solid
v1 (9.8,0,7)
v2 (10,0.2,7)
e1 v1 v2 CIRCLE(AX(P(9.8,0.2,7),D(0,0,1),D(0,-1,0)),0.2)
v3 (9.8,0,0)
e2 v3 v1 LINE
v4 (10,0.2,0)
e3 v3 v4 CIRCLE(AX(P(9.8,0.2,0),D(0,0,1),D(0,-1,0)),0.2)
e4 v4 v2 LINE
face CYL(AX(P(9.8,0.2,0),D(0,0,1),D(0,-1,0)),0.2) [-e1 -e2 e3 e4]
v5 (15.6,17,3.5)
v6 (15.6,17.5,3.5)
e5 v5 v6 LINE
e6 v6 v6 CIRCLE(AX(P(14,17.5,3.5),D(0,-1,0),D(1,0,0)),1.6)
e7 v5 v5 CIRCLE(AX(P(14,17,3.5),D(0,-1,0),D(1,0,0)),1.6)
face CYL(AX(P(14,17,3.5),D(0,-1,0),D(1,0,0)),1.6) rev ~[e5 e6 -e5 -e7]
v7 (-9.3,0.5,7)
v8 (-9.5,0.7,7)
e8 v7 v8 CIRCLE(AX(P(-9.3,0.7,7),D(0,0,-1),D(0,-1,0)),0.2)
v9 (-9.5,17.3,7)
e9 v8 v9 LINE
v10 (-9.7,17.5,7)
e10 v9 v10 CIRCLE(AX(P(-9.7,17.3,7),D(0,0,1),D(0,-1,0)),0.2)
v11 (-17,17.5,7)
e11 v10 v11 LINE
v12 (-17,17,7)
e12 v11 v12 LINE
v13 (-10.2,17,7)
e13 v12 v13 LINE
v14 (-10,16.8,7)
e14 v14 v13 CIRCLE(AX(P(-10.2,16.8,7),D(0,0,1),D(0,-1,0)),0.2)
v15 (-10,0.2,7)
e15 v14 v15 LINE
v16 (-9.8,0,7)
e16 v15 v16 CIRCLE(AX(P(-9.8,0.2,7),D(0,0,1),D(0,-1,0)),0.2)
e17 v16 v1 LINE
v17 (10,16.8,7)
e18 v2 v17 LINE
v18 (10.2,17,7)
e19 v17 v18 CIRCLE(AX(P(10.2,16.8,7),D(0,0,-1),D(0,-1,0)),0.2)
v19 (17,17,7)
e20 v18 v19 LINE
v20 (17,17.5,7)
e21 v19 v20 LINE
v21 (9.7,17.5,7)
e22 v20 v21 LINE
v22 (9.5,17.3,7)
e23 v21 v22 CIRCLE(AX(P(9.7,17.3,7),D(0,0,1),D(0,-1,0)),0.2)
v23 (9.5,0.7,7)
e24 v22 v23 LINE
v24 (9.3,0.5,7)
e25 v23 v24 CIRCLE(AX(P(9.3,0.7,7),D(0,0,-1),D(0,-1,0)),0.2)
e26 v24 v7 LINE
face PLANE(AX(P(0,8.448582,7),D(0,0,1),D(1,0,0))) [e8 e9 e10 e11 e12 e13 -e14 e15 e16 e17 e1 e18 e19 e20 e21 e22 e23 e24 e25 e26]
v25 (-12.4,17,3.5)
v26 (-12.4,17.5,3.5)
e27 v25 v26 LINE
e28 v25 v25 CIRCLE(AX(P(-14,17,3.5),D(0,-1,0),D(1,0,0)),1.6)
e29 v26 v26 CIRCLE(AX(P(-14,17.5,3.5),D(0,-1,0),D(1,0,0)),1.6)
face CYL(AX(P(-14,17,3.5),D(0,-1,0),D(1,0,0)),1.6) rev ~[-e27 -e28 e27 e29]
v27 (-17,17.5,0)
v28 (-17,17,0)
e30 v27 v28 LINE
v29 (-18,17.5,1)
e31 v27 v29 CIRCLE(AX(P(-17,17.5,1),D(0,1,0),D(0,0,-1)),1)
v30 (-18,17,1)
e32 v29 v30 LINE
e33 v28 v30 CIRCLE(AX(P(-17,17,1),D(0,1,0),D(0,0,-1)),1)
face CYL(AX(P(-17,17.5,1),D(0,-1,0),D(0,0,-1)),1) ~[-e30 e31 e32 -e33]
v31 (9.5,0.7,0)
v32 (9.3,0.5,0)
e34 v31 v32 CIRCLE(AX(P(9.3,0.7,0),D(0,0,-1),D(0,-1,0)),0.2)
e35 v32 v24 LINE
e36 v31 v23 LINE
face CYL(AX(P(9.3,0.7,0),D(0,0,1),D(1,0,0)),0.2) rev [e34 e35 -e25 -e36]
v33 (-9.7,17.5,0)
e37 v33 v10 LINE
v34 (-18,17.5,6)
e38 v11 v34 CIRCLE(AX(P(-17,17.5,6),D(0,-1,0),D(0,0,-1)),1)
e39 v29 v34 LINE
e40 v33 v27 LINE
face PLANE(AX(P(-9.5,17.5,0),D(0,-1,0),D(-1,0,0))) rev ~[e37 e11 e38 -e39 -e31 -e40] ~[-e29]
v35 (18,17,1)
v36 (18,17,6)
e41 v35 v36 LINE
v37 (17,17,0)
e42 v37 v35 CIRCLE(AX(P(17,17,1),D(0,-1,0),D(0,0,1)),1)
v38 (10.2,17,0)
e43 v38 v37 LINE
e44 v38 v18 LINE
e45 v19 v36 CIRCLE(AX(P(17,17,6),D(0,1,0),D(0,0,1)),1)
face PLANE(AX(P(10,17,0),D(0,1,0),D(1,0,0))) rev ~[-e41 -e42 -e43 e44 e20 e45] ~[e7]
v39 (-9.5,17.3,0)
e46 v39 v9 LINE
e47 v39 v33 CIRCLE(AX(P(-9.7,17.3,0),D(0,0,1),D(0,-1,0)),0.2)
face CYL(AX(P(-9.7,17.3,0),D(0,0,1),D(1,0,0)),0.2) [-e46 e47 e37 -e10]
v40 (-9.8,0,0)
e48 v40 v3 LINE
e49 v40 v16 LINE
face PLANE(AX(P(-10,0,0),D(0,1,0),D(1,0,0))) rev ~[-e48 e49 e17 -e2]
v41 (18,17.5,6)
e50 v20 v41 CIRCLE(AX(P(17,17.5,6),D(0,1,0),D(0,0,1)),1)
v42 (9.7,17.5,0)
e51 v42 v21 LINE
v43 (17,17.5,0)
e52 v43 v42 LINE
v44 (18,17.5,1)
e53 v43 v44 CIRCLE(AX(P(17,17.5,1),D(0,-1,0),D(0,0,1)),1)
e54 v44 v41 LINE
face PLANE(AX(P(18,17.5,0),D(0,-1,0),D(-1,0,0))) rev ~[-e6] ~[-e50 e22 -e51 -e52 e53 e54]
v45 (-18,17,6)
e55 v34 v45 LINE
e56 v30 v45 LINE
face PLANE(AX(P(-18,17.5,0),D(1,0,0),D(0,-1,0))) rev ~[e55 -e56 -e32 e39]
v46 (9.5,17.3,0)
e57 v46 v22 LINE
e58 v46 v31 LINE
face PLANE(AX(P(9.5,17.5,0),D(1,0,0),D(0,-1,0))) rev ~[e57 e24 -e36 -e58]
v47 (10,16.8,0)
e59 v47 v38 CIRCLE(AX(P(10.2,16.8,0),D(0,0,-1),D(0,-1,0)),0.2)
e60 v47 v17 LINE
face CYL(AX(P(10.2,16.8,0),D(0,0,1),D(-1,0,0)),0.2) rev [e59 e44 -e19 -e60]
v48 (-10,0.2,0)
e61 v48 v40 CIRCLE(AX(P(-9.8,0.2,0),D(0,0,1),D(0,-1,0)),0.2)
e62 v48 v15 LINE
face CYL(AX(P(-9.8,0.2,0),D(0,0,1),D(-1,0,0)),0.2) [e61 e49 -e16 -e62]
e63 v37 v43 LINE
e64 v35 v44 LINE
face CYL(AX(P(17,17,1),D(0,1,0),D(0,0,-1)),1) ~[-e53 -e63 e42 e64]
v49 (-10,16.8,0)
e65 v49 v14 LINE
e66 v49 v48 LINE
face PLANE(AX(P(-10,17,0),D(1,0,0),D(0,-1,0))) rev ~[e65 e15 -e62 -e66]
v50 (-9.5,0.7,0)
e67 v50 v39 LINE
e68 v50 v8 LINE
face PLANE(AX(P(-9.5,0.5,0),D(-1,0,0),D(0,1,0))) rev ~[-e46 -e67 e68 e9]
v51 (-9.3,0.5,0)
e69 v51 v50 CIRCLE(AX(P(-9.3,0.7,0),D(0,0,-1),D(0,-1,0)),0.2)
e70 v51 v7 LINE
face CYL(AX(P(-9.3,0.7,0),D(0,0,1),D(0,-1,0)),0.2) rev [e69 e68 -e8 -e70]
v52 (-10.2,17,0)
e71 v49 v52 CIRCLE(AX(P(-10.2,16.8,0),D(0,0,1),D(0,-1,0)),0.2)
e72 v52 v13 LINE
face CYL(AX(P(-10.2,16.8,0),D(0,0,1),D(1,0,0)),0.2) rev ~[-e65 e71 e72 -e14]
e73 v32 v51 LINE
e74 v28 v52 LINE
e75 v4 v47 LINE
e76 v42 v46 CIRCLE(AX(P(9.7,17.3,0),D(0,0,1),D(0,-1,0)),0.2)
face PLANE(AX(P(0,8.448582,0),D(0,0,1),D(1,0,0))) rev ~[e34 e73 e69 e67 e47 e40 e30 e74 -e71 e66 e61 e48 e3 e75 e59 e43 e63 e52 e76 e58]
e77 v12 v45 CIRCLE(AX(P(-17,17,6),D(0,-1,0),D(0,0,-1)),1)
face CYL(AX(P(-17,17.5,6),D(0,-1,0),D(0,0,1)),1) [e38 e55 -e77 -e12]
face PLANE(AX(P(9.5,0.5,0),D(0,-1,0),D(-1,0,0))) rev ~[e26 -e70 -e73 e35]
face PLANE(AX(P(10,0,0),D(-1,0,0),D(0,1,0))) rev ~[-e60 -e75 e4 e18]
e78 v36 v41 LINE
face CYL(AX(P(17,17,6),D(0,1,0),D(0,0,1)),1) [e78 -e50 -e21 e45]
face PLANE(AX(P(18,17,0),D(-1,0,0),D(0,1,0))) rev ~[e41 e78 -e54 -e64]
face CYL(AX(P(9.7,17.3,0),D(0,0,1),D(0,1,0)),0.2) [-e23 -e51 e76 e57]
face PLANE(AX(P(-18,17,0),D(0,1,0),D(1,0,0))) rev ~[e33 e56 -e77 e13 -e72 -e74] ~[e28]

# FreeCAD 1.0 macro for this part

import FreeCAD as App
import Part
import Sketcher

V = App.Vector


def edges_at(feature, points):
    """Names of the edges that pass closest to the given points."""
    edges = feature.Shape.Edges
    near = lambda p: min(range(len(edges)), key=lambda i: edges[i].distToShape(Part.Vertex(*p))[0])
    return sorted({f"Edge{near(p) + 1}" for p in points})

doc = App.newDocument("Part")
body = doc.addObject("PartDesign::Body", "Body")

sketch1 = body.newObject("Sketcher::SketchObject", "Sketch")
sketch1.AttachmentSupport = (doc.getObject("XY_Plane"), [""])
sketch1.MapMode = "FlatFace"
sketch1.addGeometry(Part.LineSegment(V(-10, 17, 0), V(-10, 0, 0)), False)
sketch1.addGeometry(Part.LineSegment(V(-10, 0, 0), V(10, 0, 0)), False)
sketch1.addGeometry(Part.LineSegment(V(10, 0, 0), V(10, 17, 0)), False)
sketch1.addGeometry(Part.LineSegment(V(10, 17, 0), V(18, 17, 0)), False)
sketch1.addGeometry(Part.LineSegment(V(18, 17, 0), V(18, 17.5, 0)), False)
sketch1.addGeometry(Part.LineSegment(V(18, 17.5, 0), V(9.5, 17.5, 0)), False)
sketch1.addGeometry(Part.LineSegment(V(9.5, 17.5, 0), V(9.5, 0.5, 0)), False)
sketch1.addGeometry(Part.LineSegment(V(9.5, 0.5, 0), V(-9.5, 0.5, 0)), False)
sketch1.addGeometry(Part.LineSegment(V(-9.5, 0.5, 0), V(-9.5, 17.5, 0)), False)
sketch1.addGeometry(Part.LineSegment(V(-9.5, 17.5, 0), V(-18, 17.5, 0)), False)
sketch1.addGeometry(Part.LineSegment(V(-18, 17.5, 0), V(-18, 17, 0)), False)
sketch1.addGeometry(Part.LineSegment(V(-18, 17, 0), V(-10, 17, 0)), False)
sketch1.addConstraint(Sketcher.Constraint("Coincident", 0, 2, 1, 1))
sketch1.addConstraint(Sketcher.Constraint("Coincident", 1, 2, 2, 1))
sketch1.addConstraint(Sketcher.Constraint("Coincident", 2, 2, 3, 1))
sketch1.addConstraint(Sketcher.Constraint("Coincident", 3, 2, 4, 1))
sketch1.addConstraint(Sketcher.Constraint("Coincident", 4, 2, 5, 1))
sketch1.addConstraint(Sketcher.Constraint("Coincident", 5, 2, 6, 1))
sketch1.addConstraint(Sketcher.Constraint("Coincident", 6, 2, 7, 1))
sketch1.addConstraint(Sketcher.Constraint("Coincident", 7, 2, 8, 1))
sketch1.addConstraint(Sketcher.Constraint("Coincident", 8, 2, 9, 1))
sketch1.addConstraint(Sketcher.Constraint("Coincident", 9, 2, 10, 1))
sketch1.addConstraint(Sketcher.Constraint("Coincident", 10, 2, 11, 1))
sketch1.addConstraint(Sketcher.Constraint("Coincident", 11, 2, 0, 1))
sketch1.addConstraint(Sketcher.Constraint("Vertical", 0))
sketch1.addConstraint(Sketcher.Constraint("Horizontal", 1))
sketch1.addConstraint(Sketcher.Constraint("Vertical", 2))
sketch1.addConstraint(Sketcher.Constraint("Horizontal", 3))
sketch1.addConstraint(Sketcher.Constraint("Vertical", 4))
sketch1.addConstraint(Sketcher.Constraint("Horizontal", 5))
sketch1.addConstraint(Sketcher.Constraint("Vertical", 6))
sketch1.addConstraint(Sketcher.Constraint("Horizontal", 7))
sketch1.addConstraint(Sketcher.Constraint("Vertical", 8))
sketch1.addConstraint(Sketcher.Constraint("Horizontal", 9))
sketch1.addConstraint(Sketcher.Constraint("Vertical", 10))
sketch1.addConstraint(Sketcher.Constraint("Horizontal", 11))
sketch1.addConstraint(Sketcher.Constraint("Symmetric", 0, 2, 1, 2, -1, 1))
sketch1.addConstraint(Sketcher.Constraint("Symmetric", 5, 2, 8, 2, -2))
sketch1.addConstraint(Sketcher.Constraint("Symmetric", 3, 2, 10, 2, -2))
sketch1.addConstraint(Sketcher.Constraint("Equal", 2, 6))
sketch1.addConstraint(Sketcher.Constraint("DistanceX", 1, 1, 1, 2, 20.0))
sketch1.addConstraint(Sketcher.Constraint("DistanceX", 3, 1, 3, 2, 8.0))
sketch1.addConstraint(Sketcher.Constraint("DistanceX", 7, 2, 7, 1, 19.0))
sketch1.addConstraint(Sketcher.Constraint("DistanceY", 0, 2, 0, 1, 17.0))
sketch1.addConstraint(Sketcher.Constraint("DistanceY", 4, 1, 4, 2, 0.5))
pad1 = body.newObject("PartDesign::Pad", "Pad")
pad1.Profile = sketch1
pad1.Length = 7
doc.recompute()

fillet = body.newObject("PartDesign::Fillet", "Fillet")
fillet.Base = (pad1, edges_at(pad1, [
    (10, 0, 3.5),
    (-10, 0, 3.5),
    (-9.5, 0.5, 3.5),
    (9.5, 0.5, 3.5),
    (-9.5, 17.5, 3.5),
    (-10, 17, 3.5),
    (10, 17, 3.5),
    (9.5, 17.5, 3.5),
]))
fillet.Radius = 0.2

sketch2 = body.newObject("Sketcher::SketchObject", "Sketch001")
sketch2.AttachmentSupport = (doc.getObject("XZ_Plane"), [""])
sketch2.MapMode = "FlatFace"
sketch2.AttachmentOffset = App.Placement(V(0, 0, -17), App.Rotation())
sketch2.addGeometry(Part.Circle(V(14, 3.5, 0), V(0, 0, 1), 1.6), False)
sketch2.addGeometry(Part.Circle(V(-14, 3.5, 0), V(0, 0, 1), 1.6), False)
sketch2.addConstraint(Sketcher.Constraint("Equal", 0, 1))
sketch2.addConstraint(Sketcher.Constraint("Symmetric", 0, 3, 1, 3, -2))
sketch2.addConstraint(Sketcher.Constraint("Diameter", 0, 3.2))
sketch2.addConstraint(Sketcher.Constraint("DistanceX", -1, 1, 0, 3, 14.0))
sketch2.addConstraint(Sketcher.Constraint("DistanceY", -1, 1, 0, 3, 3.5))
pocket1 = body.newObject("PartDesign::Pocket", "Pocket")
pocket1.Profile = sketch2
pocket1.Type = "ThroughAll"
doc.recompute()

fillet2 = body.newObject("PartDesign::Fillet", "Fillet001")
fillet2.Base = (pocket1, edges_at(pocket1, [
    (18, 17.25, 7),
    (18, 17.25, 0),
    (-18, 17.25, 7),
    (-18, 17.25, 0),
]))
fillet2.Radius = 1

doc.recompute()
